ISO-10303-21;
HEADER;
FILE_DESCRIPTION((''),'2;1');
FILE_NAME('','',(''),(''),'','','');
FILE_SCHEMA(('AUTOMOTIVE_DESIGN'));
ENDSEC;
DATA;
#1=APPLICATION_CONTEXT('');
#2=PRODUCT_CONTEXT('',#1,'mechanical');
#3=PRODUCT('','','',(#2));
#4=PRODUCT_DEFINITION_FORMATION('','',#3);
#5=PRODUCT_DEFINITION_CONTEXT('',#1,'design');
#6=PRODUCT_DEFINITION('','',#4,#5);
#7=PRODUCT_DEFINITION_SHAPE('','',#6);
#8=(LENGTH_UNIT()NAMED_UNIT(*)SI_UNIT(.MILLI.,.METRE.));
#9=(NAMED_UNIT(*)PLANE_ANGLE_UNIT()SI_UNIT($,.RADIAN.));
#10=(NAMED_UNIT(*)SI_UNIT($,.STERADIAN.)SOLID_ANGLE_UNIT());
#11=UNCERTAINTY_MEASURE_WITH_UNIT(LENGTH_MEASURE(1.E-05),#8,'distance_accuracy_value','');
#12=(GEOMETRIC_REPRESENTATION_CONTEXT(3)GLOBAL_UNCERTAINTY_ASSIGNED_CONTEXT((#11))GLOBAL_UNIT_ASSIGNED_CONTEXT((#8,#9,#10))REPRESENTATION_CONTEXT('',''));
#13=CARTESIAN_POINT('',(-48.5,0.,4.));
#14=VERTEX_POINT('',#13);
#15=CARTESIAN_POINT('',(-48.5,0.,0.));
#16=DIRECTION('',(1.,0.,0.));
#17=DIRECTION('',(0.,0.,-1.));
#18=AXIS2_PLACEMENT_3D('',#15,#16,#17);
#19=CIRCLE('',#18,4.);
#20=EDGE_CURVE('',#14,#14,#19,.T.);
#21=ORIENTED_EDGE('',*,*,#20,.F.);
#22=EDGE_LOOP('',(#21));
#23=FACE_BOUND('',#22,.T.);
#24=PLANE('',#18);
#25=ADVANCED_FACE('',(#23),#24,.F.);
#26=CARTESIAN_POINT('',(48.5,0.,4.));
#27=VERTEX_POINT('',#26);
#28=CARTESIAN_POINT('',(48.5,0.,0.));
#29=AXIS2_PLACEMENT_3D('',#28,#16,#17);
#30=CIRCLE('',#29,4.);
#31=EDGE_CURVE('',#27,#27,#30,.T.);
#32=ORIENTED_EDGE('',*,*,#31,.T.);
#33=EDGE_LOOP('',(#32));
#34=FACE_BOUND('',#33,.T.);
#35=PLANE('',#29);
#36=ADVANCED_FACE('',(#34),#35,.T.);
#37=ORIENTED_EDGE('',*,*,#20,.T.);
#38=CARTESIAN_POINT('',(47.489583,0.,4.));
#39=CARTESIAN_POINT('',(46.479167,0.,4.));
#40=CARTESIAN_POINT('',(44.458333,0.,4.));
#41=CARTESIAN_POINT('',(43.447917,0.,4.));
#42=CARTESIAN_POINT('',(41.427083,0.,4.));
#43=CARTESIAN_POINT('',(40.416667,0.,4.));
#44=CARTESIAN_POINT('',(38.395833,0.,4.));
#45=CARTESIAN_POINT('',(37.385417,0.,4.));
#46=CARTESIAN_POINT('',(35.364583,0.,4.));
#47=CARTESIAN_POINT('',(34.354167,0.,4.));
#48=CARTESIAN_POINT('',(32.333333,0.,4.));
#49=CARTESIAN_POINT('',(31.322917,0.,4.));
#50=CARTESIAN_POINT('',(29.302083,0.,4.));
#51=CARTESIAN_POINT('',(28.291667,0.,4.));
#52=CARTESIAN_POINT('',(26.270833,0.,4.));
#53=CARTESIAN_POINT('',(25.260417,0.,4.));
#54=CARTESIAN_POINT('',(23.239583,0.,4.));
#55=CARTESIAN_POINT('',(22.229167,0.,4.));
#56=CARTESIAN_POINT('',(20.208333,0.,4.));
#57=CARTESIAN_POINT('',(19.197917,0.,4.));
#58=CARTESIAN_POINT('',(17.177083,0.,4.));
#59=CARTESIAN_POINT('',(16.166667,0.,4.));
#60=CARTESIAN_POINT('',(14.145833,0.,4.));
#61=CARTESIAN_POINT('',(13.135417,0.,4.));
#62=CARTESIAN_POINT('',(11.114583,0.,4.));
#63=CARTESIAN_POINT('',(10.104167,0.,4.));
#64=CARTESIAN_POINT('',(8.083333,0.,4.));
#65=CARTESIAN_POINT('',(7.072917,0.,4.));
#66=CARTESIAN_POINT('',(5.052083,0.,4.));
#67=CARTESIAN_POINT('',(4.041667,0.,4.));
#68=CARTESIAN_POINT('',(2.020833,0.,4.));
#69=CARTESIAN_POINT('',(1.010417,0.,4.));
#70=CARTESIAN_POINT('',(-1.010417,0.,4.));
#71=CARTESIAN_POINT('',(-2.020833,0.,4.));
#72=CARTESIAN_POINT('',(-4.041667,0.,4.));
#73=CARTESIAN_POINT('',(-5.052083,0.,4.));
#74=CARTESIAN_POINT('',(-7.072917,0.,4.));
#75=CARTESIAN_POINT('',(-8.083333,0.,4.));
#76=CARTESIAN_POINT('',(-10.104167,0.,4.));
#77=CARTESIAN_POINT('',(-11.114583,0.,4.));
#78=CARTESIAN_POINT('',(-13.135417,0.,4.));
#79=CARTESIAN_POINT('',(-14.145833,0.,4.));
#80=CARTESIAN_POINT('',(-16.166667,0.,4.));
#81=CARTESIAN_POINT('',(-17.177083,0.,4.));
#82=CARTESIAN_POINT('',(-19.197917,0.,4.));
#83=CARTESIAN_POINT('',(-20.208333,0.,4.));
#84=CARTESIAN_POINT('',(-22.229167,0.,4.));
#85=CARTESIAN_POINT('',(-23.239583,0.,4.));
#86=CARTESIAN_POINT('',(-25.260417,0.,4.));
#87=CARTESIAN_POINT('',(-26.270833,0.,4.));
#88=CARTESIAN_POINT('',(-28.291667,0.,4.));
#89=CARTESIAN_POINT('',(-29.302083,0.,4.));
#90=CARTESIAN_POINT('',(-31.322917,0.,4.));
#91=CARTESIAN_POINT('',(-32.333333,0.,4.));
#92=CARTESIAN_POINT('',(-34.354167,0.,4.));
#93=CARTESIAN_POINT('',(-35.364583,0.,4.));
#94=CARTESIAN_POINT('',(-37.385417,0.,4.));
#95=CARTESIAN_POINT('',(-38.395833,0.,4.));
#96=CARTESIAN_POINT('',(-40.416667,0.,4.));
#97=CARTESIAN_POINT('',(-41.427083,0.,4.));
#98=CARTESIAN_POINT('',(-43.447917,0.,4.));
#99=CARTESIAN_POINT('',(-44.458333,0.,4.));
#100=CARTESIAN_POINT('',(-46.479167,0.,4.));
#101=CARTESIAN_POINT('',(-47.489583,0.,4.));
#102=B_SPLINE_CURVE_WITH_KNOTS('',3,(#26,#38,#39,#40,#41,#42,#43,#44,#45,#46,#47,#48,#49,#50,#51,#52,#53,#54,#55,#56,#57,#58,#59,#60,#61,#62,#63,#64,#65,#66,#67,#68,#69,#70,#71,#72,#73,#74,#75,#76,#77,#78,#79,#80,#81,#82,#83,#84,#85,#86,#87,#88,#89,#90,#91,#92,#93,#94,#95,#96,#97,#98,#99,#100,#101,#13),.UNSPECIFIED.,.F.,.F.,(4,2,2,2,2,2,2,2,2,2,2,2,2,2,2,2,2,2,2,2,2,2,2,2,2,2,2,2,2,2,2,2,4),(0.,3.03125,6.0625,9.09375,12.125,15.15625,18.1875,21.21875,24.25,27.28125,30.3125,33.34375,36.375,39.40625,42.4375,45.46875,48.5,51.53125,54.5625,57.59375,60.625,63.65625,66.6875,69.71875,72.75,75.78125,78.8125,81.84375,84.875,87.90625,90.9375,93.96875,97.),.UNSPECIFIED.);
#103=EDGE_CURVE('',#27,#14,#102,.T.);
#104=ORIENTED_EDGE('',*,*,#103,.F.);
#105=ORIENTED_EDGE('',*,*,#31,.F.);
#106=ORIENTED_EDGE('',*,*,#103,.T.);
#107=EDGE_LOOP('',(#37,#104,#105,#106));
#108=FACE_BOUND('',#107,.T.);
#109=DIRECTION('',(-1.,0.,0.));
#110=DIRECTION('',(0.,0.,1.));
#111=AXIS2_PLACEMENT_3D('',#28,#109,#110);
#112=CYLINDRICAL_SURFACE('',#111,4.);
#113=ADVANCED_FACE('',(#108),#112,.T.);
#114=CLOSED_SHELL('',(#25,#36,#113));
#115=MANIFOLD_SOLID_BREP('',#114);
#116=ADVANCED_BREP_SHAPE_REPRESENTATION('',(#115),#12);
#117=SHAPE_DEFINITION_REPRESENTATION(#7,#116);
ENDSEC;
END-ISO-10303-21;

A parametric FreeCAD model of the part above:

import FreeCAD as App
import Part
import Sketcher

V = App.Vector

doc = App.newDocument("Part")
body = doc.addObject("PartDesign::Body", "Body")

sketch1 = body.newObject("Sketcher::SketchObject", "Sketch")
sketch1.AttachmentSupport = (doc.getObject("YZ_Plane"), [""])
sketch1.MapMode = "FlatFace"
sketch1.addGeometry(Part.Circle(V(0, 0, 0), V(0, 0, 1), 4), False)
sketch1.addConstraint(Sketcher.Constraint("Coincident", 0, 3, -1, 1))
sketch1.addConstraint(Sketcher.Constraint("Diameter", 0, 8.0))
pad1 = body.newObject("PartDesign::Pad", "Pad")
pad1.Profile = sketch1
pad1.Length = 97
pad1.Midplane = True

doc.recompute()
